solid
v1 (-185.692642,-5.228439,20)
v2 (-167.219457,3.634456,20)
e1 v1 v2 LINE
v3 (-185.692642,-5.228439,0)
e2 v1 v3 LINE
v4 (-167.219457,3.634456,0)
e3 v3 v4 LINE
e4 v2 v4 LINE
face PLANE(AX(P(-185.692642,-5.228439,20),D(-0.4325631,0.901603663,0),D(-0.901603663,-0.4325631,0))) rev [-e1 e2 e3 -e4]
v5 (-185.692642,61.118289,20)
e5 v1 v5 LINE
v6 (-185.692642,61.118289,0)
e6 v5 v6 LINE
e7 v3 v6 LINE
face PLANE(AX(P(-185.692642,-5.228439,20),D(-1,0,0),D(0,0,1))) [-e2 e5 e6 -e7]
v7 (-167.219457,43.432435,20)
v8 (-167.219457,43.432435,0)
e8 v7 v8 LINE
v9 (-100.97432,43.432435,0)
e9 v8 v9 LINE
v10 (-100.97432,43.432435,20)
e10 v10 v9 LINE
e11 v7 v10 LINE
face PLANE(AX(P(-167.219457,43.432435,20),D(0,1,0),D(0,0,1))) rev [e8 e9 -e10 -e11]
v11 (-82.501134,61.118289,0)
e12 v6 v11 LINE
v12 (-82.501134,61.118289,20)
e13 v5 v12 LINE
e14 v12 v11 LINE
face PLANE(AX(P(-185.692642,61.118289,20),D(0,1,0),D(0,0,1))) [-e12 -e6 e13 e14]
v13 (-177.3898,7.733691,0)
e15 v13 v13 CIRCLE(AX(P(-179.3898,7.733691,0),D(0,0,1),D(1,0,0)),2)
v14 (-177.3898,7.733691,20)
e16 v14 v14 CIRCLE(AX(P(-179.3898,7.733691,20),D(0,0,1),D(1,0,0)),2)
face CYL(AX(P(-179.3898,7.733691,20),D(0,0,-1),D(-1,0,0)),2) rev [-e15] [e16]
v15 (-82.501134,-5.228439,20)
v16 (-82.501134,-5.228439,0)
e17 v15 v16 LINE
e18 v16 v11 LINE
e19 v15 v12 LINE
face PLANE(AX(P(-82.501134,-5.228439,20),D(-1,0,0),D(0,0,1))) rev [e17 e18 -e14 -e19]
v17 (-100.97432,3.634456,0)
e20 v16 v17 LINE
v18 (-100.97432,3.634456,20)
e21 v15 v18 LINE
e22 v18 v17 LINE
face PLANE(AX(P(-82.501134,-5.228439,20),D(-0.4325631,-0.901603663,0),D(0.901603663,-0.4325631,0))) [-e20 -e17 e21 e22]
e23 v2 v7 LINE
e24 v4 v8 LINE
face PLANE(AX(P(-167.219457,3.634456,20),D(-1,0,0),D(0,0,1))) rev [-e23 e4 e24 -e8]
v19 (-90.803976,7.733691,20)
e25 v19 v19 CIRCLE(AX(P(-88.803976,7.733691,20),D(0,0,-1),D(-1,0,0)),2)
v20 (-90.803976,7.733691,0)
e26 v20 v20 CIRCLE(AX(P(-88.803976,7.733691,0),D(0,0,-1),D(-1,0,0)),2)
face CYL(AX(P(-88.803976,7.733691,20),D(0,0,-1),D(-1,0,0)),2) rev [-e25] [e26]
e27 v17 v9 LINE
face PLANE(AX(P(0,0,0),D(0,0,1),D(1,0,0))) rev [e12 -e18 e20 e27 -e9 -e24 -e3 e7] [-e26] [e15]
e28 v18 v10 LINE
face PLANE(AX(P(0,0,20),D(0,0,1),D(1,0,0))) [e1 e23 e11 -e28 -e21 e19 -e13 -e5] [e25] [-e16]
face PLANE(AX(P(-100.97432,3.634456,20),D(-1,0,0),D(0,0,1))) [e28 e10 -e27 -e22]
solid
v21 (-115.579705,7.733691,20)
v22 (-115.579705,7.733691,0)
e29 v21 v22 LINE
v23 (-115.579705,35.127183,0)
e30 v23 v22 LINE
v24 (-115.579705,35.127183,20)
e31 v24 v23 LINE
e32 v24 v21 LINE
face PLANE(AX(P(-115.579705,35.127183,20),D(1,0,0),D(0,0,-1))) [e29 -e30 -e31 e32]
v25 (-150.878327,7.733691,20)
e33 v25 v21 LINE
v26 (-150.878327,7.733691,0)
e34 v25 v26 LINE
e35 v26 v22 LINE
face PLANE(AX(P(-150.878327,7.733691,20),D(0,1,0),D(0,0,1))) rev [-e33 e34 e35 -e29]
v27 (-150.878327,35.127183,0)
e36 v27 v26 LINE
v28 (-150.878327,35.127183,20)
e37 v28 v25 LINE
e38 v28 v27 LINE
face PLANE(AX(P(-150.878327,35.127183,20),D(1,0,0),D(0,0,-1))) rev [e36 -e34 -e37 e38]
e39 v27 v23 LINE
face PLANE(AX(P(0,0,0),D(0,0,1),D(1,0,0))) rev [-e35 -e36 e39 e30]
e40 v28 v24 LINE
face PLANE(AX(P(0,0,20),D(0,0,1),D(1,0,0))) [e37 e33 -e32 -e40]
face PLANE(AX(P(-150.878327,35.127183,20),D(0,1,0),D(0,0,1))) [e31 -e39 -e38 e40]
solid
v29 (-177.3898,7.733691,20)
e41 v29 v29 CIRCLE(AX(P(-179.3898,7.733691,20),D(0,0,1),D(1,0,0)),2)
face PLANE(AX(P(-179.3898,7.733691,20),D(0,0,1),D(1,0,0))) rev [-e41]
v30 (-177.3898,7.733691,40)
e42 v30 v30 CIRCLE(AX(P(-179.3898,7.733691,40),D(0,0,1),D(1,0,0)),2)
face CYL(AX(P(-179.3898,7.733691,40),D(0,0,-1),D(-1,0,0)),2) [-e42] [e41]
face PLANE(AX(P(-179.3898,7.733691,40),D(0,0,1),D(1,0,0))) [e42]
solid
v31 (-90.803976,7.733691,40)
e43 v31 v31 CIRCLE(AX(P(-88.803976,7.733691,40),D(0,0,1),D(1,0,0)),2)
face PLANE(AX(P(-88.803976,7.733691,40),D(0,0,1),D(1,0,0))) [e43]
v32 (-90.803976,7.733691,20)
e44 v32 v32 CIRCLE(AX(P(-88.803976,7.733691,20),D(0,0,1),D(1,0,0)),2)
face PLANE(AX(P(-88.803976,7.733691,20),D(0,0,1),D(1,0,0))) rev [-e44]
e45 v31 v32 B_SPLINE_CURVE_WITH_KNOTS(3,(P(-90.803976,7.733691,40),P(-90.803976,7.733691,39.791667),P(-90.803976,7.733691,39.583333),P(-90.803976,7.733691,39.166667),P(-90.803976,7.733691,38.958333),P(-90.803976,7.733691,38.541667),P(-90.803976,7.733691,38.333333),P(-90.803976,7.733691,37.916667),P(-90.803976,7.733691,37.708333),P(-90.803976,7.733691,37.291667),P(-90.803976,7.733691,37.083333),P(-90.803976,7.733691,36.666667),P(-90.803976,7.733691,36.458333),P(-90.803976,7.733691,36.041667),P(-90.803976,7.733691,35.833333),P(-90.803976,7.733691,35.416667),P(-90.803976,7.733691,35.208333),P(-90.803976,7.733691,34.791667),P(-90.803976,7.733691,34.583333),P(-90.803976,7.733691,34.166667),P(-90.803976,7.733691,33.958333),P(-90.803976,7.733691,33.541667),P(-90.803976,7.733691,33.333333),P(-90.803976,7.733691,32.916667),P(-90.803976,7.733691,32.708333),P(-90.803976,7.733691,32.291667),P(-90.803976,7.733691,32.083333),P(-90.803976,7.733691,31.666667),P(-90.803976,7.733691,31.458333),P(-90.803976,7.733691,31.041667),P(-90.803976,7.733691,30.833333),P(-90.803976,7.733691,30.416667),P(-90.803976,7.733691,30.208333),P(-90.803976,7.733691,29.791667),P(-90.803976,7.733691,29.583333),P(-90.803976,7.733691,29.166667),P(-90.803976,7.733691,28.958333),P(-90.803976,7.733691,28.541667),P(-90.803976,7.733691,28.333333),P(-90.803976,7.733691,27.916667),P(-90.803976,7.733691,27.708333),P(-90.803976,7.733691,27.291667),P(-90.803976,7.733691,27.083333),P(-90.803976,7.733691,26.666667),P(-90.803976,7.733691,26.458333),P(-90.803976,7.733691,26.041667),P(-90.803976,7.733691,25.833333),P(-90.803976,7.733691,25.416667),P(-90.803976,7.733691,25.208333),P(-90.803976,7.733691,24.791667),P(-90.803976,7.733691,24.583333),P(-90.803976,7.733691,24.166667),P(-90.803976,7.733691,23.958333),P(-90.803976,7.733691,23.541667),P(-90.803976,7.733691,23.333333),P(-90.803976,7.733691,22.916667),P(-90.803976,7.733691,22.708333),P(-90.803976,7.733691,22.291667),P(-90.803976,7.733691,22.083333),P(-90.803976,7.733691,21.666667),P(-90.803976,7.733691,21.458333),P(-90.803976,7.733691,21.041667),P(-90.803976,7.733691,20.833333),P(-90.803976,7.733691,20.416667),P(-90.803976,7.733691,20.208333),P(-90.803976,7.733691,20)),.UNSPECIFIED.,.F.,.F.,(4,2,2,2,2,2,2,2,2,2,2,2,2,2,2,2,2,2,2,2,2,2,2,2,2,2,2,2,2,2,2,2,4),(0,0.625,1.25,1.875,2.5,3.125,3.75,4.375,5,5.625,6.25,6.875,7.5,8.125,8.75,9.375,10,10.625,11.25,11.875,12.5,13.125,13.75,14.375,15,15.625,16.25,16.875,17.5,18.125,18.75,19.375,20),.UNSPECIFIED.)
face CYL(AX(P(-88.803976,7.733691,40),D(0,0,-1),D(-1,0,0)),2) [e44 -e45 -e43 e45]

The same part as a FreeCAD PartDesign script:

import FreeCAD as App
import Part
import Sketcher

V = App.Vector


def add_polygon(sketch, points):
    """Adds a closed chain of lines whose ends are joined by coincident constraints."""
    first, n = sketch.GeometryCount, len(points)
    for a, b in zip(points, points[1:] + points[:1]):
        sketch.addGeometry(Part.LineSegment(App.Vector(*a, 0), App.Vector(*b, 0)), False)
    for i in range(n):
        sketch.addConstraint(Sketcher.Constraint("Coincident", first + i, 2, first + (i + 1) % n, 1))

doc = App.newDocument("Part")
body = doc.addObject("PartDesign::Body", "Body")

sketch1 = body.newObject("Sketcher::SketchObject", "Sketch")
sketch1.AttachmentSupport = (doc.getObject("XY_Plane"), [""])
sketch1.MapMode = "FlatFace"
add_polygon(sketch1, [(-185.692642, 61.118289), (-185.692642, -5.228439), (-167.219457, 3.634456), (-167.219457, 43.432435), (-100.97432, 43.432435), (-100.97432, 3.634456), (-82.501134, -5.228439), (-82.501134, 61.118289)])
sketch1.addGeometry(Part.Circle(V(-88.803976, 7.733691, 0), V(0, 0, 1), 2), False)
sketch1.addGeometry(Part.Circle(V(-179.3898, 7.733691, 0), V(0, 0, 1), 2), False)
sketch1.addConstraint(Sketcher.Constraint("Vertical", 0))
sketch1.addConstraint(Sketcher.Constraint("Vertical", 2))
sketch1.addConstraint(Sketcher.Constraint("Horizontal", 3))
sketch1.addConstraint(Sketcher.Constraint("Vertical", 4))
sketch1.addConstraint(Sketcher.Constraint("Vertical", 6))
sketch1.addConstraint(Sketcher.Constraint("Horizontal", 7))
sketch1.addConstraint(Sketcher.Constraint("Equal", 8, 9))
sketch1.addConstraint(Sketcher.Constraint("Horizontal", 8, 3, 9, 3))
sketch1.addConstraint(Sketcher.Constraint("Horizontal", 1, 2, 4, 2))
sketch1.addConstraint(Sketcher.Constraint("Horizontal", 0, 2, 5, 2))
sketch1.addConstraint(Sketcher.Constraint("Equal", 1, 5))
sketch1.addConstraint(Sketcher.Constraint("Diameter", 8, 4.0))
sketch1.addConstraint(Sketcher.Constraint("DistanceY", 0, 2, 0, 1, 66.346729))
sketch1.addConstraint(Sketcher.Constraint("DistanceY", 2, 1, 2, 2, 39.79798))
sketch1.addConstraint(Sketcher.Constraint("DistanceX", 9, 3, -1, 1, 179.3898))
sketch1.addConstraint(Sketcher.Constraint("DistanceY", 8, 3, 6, 2, 53.384598))
sketch1.addConstraint(Sketcher.Constraint("DistanceX", 3, 1, 3, 2, 66.245137))
sketch1.addConstraint(Sketcher.Constraint("DistanceX", 7, 2, 7, 1, 103.191508))
sketch1.addConstraint(Sketcher.Constraint("DistanceY", -1, 1, 8, 3, 7.733691))
sketch1.addConstraint(Sketcher.Constraint("DistanceX", 3, 2, -1, 1, 100.97432))
sketch1.addConstraint(Sketcher.Constraint("DistanceX", 1, 2, 8, 3, 78.41548))
sketch1.addConstraint(Sketcher.Constraint("Distance", 1, 20.489253))
pad1 = body.newObject("PartDesign::Pad", "Pad")
pad1.Profile = sketch1
pad1.Length = 20
body2 = doc.addObject("PartDesign::Body", "Body001")

sketch2 = body2.newObject("Sketcher::SketchObject", "Sketch001")
sketch2.AttachmentSupport = (doc.getObject("XY_Plane001"), [""])
sketch2.MapMode = "FlatFace"
sketch2.AttachmentOffset = App.Placement(V(0, 0, 20), App.Rotation())
sketch2.addGeometry(Part.Circle(V(-179.3898, 7.733691, 0), V(0, 0, 1), 2), False)
sketch2.addConstraint(Sketcher.Constraint("Diameter", 0, 4.0))
sketch2.addConstraint(Sketcher.Constraint("DistanceX", 0, 3, -1, 1, 179.3898))
sketch2.addConstraint(Sketcher.Constraint("DistanceY", -1, 1, 0, 3, 7.733691))
pad2 = body2.newObject("PartDesign::Pad", "Pad001")
pad2.Profile = sketch2
pad2.Length = 20
body3 = doc.addObject("PartDesign::Body", "Body002")

sketch3 = body3.newObject("Sketcher::SketchObject", "Sketch002")
sketch3.AttachmentSupport = (doc.getObject("XY_Plane002"), [""])
sketch3.MapMode = "FlatFace"
sketch3.AttachmentOffset = App.Placement(V(0, 0, 20), App.Rotation())
sketch3.addGeometry(Part.Circle(V(-88.803976, 7.733691, 0), V(0, 0, 1), 2), False)
sketch3.addConstraint(Sketcher.Constraint("Diameter", 0, 4.0))
sketch3.addConstraint(Sketcher.Constraint("DistanceY", -1, 1, 0, 3, 7.733691))
sketch3.addConstraint(Sketcher.Constraint("DistanceX", 0, 3, -1, 1, 88.803976))
pad3 = body3.newObject("PartDesign::Pad", "Pad002")
pad3.Profile = sketch3
pad3.Length = 20
body4 = doc.addObject("PartDesign::Body", "Body003")

sketch4 = body4.newObject("Sketcher::SketchObject", "Sketch003")
sketch4.AttachmentSupport = (doc.getObject("XY_Plane003"), [""])
sketch4.MapMode = "FlatFace"
add_polygon(sketch4, [(-150.878327, 35.127183), (-150.878327, 7.733691), (-115.579705, 7.733691), (-115.579705, 35.127183)])
sketch4.addConstraint(Sketcher.Constraint("Vertical", 0))
sketch4.addConstraint(Sketcher.Constraint("Horizontal", 1))
sketch4.addConstraint(Sketcher.Constraint("Vertical", 2))
sketch4.addConstraint(Sketcher.Constraint("Horizontal", 3))
sketch4.addConstraint(Sketcher.Constraint("DistanceX", 1, 1, 1, 2, 35.298622))
sketch4.addConstraint(Sketcher.Constraint("DistanceY", 0, 2, 0, 1, 27.393492))
sketch4.addConstraint(Sketcher.Constraint("DistanceY", -1, 1, 0, 2, 7.733691))
sketch4.addConstraint(Sketcher.Constraint("DistanceX", 0, 2, -1, 1, 150.878327))
pad4 = body4.newObject("PartDesign::Pad", "Pad003")
pad4.Profile = sketch4
pad4.Length = 20

doc.recompute()
